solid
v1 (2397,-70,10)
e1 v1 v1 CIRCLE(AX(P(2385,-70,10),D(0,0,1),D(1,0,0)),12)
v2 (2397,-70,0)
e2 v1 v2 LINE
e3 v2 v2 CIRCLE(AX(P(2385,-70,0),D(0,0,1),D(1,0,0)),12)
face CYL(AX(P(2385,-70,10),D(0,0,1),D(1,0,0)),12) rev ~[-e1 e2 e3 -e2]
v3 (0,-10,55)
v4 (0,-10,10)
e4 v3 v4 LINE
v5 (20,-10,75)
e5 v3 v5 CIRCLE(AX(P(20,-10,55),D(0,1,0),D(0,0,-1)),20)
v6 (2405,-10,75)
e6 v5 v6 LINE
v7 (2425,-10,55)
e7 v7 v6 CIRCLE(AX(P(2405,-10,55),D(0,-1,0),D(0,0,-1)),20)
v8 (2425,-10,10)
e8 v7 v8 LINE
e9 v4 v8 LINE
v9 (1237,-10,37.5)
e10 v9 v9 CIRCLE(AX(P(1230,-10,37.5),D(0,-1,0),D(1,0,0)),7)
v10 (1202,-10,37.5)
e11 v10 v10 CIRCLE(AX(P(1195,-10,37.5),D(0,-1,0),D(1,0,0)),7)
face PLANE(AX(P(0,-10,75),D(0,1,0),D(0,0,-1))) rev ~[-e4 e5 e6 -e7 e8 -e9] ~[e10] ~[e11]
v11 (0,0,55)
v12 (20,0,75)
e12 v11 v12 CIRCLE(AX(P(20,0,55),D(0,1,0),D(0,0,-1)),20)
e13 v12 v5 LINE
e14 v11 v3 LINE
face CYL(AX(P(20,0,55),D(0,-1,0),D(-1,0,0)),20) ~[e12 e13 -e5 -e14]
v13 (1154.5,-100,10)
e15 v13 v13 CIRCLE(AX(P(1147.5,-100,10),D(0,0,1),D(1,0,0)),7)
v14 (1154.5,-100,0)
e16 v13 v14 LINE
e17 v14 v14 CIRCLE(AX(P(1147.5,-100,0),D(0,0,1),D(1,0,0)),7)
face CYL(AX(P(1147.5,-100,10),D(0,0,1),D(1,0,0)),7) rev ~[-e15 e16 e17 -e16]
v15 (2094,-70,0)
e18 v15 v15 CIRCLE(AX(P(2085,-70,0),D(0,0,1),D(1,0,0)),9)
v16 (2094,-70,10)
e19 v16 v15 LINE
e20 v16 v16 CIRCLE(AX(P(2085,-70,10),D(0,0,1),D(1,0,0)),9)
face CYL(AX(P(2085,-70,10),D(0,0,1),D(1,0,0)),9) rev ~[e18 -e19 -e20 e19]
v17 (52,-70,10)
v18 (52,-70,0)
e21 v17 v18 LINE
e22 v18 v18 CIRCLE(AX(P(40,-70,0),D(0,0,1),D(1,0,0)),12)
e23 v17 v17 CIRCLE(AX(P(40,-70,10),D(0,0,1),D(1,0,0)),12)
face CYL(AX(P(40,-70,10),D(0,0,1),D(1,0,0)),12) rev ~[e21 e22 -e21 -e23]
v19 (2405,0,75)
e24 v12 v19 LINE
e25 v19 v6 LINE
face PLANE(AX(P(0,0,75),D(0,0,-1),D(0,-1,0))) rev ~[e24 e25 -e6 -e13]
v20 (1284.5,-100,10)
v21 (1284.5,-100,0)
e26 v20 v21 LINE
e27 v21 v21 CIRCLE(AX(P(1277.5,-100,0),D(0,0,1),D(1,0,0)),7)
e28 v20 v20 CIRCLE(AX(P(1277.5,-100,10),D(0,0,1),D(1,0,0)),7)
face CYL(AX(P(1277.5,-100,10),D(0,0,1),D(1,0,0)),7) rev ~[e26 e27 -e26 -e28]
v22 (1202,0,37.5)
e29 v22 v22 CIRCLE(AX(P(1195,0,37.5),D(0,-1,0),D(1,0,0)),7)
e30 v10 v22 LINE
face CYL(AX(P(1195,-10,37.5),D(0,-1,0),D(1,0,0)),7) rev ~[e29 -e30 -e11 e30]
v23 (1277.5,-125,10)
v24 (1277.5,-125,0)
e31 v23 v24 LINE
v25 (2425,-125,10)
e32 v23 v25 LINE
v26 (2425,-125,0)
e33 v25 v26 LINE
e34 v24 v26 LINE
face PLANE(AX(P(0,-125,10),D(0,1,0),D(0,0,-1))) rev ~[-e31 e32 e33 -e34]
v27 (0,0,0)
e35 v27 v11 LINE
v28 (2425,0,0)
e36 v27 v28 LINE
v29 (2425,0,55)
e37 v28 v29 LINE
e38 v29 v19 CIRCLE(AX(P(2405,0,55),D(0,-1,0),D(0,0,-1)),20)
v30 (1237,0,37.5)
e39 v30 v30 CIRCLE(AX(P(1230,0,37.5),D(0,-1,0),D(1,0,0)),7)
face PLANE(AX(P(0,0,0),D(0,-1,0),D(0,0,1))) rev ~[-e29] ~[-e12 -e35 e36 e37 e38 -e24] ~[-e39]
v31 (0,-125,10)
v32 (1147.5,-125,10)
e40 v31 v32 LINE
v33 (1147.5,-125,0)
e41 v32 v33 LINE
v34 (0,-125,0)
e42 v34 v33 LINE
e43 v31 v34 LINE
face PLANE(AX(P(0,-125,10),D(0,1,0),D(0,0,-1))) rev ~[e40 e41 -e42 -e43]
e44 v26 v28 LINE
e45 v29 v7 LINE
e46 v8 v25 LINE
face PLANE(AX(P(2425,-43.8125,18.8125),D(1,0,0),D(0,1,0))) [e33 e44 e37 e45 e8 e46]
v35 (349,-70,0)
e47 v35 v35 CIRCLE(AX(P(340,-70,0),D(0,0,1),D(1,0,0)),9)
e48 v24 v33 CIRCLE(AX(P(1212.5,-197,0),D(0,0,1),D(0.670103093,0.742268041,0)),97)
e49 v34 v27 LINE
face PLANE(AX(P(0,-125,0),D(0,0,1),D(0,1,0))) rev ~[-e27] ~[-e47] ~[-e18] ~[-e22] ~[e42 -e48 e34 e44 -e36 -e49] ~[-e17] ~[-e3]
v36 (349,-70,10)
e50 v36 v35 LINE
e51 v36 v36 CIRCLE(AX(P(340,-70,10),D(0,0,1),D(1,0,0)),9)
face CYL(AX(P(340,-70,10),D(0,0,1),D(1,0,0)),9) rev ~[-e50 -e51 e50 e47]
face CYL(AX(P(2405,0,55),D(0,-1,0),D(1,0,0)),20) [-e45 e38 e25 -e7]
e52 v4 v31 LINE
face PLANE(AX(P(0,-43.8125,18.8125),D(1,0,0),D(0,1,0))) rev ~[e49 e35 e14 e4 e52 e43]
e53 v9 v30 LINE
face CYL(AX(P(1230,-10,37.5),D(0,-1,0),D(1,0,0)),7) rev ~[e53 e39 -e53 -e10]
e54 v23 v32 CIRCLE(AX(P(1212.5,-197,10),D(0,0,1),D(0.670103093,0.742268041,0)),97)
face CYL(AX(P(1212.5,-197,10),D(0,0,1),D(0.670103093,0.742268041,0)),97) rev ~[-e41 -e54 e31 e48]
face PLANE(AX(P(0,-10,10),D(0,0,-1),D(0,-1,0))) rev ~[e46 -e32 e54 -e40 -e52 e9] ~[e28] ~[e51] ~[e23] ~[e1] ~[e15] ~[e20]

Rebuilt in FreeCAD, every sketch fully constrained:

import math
import FreeCAD as App
import Part
import Sketcher

V = App.Vector


def edges_at(feature, points):
    """Names of the edges that pass closest to the given points."""
    edges = feature.Shape.Edges
    near = lambda p: min(range(len(edges)), key=lambda i: edges[i].distToShape(Part.Vertex(*p))[0])
    return sorted({f"Edge{near(p) + 1}" for p in points})


def add_polygon(sketch, points):
    """Adds a closed chain of lines whose ends are joined by coincident constraints."""
    first, n = sketch.GeometryCount, len(points)
    for a, b in zip(points, points[1:] + points[:1]):
        sketch.addGeometry(Part.LineSegment(App.Vector(*a, 0), App.Vector(*b, 0)), False)
    for i in range(n):
        sketch.addConstraint(Sketcher.Constraint("Coincident", first + i, 2, first + (i + 1) % n, 1))

doc = App.newDocument("Part")
params = doc.addObject("Spreadsheet::Sheet", "Params")
for row, (alias, value) in enumerate([
    ("sketch1_width", "125 mm"),
    ("sketch1_width2", "10 mm"),
    ("sketch1_height", "75 mm"),
    ("pad1_length", "2425 mm"),
    ("sketch2_diameter", "24 mm"),
    ("sketch2_diameter2", "14 mm"),
    ("sketch2_diameter3", "18 mm"),
    ("sketch2_radius", "97 mm"),
    ("sketch2_width", "130 mm"),
    ("pocket1_length", "10 mm"),
    ("sketch3_diameter", "14 mm"),
    ("pocket2_length", "10 mm"),
    ("fillet_radius", "20 mm"),
], start=1):
    params.set(f"A{row}", alias)
    params.set(f"B{row}", "=" + value)
    params.setAlias(f"B{row}", alias)

body = doc.addObject("PartDesign::Body", "Body")

sketch1 = body.newObject("Sketcher::SketchObject", "Sketch")
sketch1.AttachmentSupport = (doc.getObject("YZ_Plane"), [""])
sketch1.MapMode = "FlatFace"
add_polygon(sketch1, [(-125, 0), (0, 0), (0, 75), (-10, 75), (-10, 10), (-125, 10)])
sketch1.addConstraint(Sketcher.Constraint("Horizontal", 0))
sketch1.addConstraint(Sketcher.Constraint("Vertical", 1))
sketch1.addConstraint(Sketcher.Constraint("Horizontal", 2))
sketch1.addConstraint(Sketcher.Constraint("Vertical", 3))
sketch1.addConstraint(Sketcher.Constraint("Horizontal", 4))
sketch1.addConstraint(Sketcher.Constraint("Vertical", 5))
sketch1.addConstraint(Sketcher.Constraint("Coincident", 0, 2, -1, 1))
sketch1.addConstraint(Sketcher.Constraint("Equal", 2, 5))
sketch1.addConstraint(Sketcher.Constraint("DistanceX", 0, 1, 0, 2, 125.0))
sketch1.addConstraint(Sketcher.Constraint("DistanceX", 2, 2, 2, 1, 10.0))
sketch1.addConstraint(Sketcher.Constraint("DistanceY", 1, 1, 1, 2, 75.0))
sketch1.setExpression("Constraints[14]", "Params.sketch1_width")
sketch1.setExpression("Constraints[15]", "Params.sketch1_width2")
sketch1.setExpression("Constraints[16]", "Params.sketch1_height")
pad1 = body.newObject("PartDesign::Pad", "Pad")
pad1.Profile = sketch1
pad1.setExpression("Length", "Params.pad1_length")

sketch2 = body.newObject("Sketcher::SketchObject", "Sketch001")
sketch2.AttachmentSupport = (doc.getObject("XY_Plane"), [""])
sketch2.MapMode = "FlatFace"
sketch2.AttachmentOffset = App.Placement(V(0, 0, 10), App.Rotation())
sketch2.addGeometry(Part.Circle(V(40, -70, 0), V(0, 0, 1), 12), False)
sketch2.addGeometry(Part.Circle(V(2385, -70, 0), V(0, 0, 1), 12), False)
sketch2.addGeometry(Part.LineSegment(V(1148, -125, 0), V(1278, -125, 0)), False)
sketch2.addGeometry(Part.ArcOfCircle(Part.Circle(V(1212, -197, 0), V(0, 0, 1), 97), math.radians(48), math.radians(132)), False)
sketch2.addGeometry(Part.Circle(V(1148, -100, 0), V(0, 0, 1), 7), False)
sketch2.addGeometry(Part.Circle(V(1278, -100, 0), V(0, 0, 1), 7), False)
sketch2.addGeometry(Part.Circle(V(2085, -70, 0), V(0, 0, 1), 9), False)
sketch2.addGeometry(Part.Circle(V(340, -70, 0), V(0, 0, 1), 9), False)
sketch2.addConstraint(Sketcher.Constraint("Coincident", 2, 1, 3, 2))
sketch2.addConstraint(Sketcher.Constraint("Coincident", 3, 1, 2, 2))
sketch2.addConstraint(Sketcher.Constraint("Horizontal", 2))
sketch2.addConstraint(Sketcher.Constraint("Equal", 0, 1))
sketch2.addConstraint(Sketcher.Constraint("Equal", 4, 5))
sketch2.addConstraint(Sketcher.Constraint("Equal", 6, 7))
sketch2.addConstraint(Sketcher.Constraint("Horizontal", 0, 3, 1, 3))
sketch2.addConstraint(Sketcher.Constraint("Horizontal", 4, 3, 5, 3))
sketch2.addConstraint(Sketcher.Constraint("Horizontal", 1, 3, 6, 3))
sketch2.addConstraint(Sketcher.Constraint("Horizontal", 6, 3, 7, 3))
sketch2.addConstraint(Sketcher.Constraint("Vertical", 4, 3, 2, 1))
sketch2.addConstraint(Sketcher.Constraint("Vertical", 5, 3, 3, 1))
sketch2.addConstraint(Sketcher.Constraint("Diameter", 0, 24.0))
sketch2.addConstraint(Sketcher.Constraint("Diameter", 4, 14.0))
sketch2.addConstraint(Sketcher.Constraint("Diameter", 6, 18.0))
sketch2.addConstraint(Sketcher.Constraint("Radius", 3, 97.0))
sketch2.addConstraint(Sketcher.Constraint("DistanceX", 2, 1, 2, 2, 130.0))
sketch2.addConstraint(Sketcher.Constraint("DistanceX", -1, 1, 0, 3, 40.0))
sketch2.addConstraint(Sketcher.Constraint("DistanceY", 0, 3, -1, 1, 70.0))
sketch2.addConstraint(Sketcher.Constraint("DistanceX", -1, 1, 1, 3, 2385.0))
sketch2.addConstraint(Sketcher.Constraint("DistanceY", 3, 3, -1, 1, 197.0))
sketch2.addConstraint(Sketcher.Constraint("DistanceY", 4, 3, -1, 1, 100.0))
sketch2.addConstraint(Sketcher.Constraint("DistanceX", -1, 1, 6, 3, 2085.0))
sketch2.addConstraint(Sketcher.Constraint("DistanceX", -1, 1, 7, 3, 340.0))
sketch2.addConstraint(Sketcher.Constraint("DistanceX", -1, 1, 3, 3, 1212.5))
sketch2.setExpression("Constraints[12]", "Params.sketch2_diameter")
sketch2.setExpression("Constraints[13]", "Params.sketch2_diameter2")
sketch2.setExpression("Constraints[14]", "Params.sketch2_diameter3")
sketch2.setExpression("Constraints[15]", "Params.sketch2_radius")
sketch2.setExpression("Constraints[16]", "Params.sketch2_width")
pocket1 = body.newObject("PartDesign::Pocket", "Pocket")
pocket1.Profile = sketch2
pocket1.setExpression("Length", "Params.pocket1_length")

sketch3 = body.newObject("Sketcher::SketchObject", "Sketch002")
sketch3.AttachmentSupport = (doc.getObject("XZ_Plane"), [""])
sketch3.MapMode = "FlatFace"
sketch3.AttachmentOffset = App.Placement(V(0, 0, 10), App.Rotation())
sketch3.addGeometry(Part.Circle(V(1195, 38, 0), V(0, 0, 1), 7), False)
sketch3.addGeometry(Part.Circle(V(1230, 38, 0), V(0, 0, 1), 7), False)
sketch3.addConstraint(Sketcher.Constraint("Equal", 0, 1))
sketch3.addConstraint(Sketcher.Constraint("Horizontal", 0, 3, 1, 3))
sketch3.addConstraint(Sketcher.Constraint("Diameter", 0, 14.0))
sketch3.addConstraint(Sketcher.Constraint("DistanceX", -1, 1, 0, 3, 1195.0))
sketch3.addConstraint(Sketcher.Constraint("DistanceX", -1, 1, 1, 3, 1230.0))
sketch3.addConstraint(Sketcher.Constraint("DistanceY", -1, 1, 0, 3, 37.5))
sketch3.setExpression("Constraints[2]", "Params.sketch3_diameter")
pocket2 = body.newObject("PartDesign::Pocket", "Pocket001")
pocket2.Profile = sketch3
pocket2.setExpression("Length", "Params.pocket2_length")
doc.recompute()

fillet = body.newObject("PartDesign::Fillet", "Fillet")
fillet.Base = (pocket2, edges_at(pocket2, [(2425, -5, 75), (0, -5, 75)]))
fillet.setExpression("Radius", "Params.fillet_radius")

doc.recompute()
